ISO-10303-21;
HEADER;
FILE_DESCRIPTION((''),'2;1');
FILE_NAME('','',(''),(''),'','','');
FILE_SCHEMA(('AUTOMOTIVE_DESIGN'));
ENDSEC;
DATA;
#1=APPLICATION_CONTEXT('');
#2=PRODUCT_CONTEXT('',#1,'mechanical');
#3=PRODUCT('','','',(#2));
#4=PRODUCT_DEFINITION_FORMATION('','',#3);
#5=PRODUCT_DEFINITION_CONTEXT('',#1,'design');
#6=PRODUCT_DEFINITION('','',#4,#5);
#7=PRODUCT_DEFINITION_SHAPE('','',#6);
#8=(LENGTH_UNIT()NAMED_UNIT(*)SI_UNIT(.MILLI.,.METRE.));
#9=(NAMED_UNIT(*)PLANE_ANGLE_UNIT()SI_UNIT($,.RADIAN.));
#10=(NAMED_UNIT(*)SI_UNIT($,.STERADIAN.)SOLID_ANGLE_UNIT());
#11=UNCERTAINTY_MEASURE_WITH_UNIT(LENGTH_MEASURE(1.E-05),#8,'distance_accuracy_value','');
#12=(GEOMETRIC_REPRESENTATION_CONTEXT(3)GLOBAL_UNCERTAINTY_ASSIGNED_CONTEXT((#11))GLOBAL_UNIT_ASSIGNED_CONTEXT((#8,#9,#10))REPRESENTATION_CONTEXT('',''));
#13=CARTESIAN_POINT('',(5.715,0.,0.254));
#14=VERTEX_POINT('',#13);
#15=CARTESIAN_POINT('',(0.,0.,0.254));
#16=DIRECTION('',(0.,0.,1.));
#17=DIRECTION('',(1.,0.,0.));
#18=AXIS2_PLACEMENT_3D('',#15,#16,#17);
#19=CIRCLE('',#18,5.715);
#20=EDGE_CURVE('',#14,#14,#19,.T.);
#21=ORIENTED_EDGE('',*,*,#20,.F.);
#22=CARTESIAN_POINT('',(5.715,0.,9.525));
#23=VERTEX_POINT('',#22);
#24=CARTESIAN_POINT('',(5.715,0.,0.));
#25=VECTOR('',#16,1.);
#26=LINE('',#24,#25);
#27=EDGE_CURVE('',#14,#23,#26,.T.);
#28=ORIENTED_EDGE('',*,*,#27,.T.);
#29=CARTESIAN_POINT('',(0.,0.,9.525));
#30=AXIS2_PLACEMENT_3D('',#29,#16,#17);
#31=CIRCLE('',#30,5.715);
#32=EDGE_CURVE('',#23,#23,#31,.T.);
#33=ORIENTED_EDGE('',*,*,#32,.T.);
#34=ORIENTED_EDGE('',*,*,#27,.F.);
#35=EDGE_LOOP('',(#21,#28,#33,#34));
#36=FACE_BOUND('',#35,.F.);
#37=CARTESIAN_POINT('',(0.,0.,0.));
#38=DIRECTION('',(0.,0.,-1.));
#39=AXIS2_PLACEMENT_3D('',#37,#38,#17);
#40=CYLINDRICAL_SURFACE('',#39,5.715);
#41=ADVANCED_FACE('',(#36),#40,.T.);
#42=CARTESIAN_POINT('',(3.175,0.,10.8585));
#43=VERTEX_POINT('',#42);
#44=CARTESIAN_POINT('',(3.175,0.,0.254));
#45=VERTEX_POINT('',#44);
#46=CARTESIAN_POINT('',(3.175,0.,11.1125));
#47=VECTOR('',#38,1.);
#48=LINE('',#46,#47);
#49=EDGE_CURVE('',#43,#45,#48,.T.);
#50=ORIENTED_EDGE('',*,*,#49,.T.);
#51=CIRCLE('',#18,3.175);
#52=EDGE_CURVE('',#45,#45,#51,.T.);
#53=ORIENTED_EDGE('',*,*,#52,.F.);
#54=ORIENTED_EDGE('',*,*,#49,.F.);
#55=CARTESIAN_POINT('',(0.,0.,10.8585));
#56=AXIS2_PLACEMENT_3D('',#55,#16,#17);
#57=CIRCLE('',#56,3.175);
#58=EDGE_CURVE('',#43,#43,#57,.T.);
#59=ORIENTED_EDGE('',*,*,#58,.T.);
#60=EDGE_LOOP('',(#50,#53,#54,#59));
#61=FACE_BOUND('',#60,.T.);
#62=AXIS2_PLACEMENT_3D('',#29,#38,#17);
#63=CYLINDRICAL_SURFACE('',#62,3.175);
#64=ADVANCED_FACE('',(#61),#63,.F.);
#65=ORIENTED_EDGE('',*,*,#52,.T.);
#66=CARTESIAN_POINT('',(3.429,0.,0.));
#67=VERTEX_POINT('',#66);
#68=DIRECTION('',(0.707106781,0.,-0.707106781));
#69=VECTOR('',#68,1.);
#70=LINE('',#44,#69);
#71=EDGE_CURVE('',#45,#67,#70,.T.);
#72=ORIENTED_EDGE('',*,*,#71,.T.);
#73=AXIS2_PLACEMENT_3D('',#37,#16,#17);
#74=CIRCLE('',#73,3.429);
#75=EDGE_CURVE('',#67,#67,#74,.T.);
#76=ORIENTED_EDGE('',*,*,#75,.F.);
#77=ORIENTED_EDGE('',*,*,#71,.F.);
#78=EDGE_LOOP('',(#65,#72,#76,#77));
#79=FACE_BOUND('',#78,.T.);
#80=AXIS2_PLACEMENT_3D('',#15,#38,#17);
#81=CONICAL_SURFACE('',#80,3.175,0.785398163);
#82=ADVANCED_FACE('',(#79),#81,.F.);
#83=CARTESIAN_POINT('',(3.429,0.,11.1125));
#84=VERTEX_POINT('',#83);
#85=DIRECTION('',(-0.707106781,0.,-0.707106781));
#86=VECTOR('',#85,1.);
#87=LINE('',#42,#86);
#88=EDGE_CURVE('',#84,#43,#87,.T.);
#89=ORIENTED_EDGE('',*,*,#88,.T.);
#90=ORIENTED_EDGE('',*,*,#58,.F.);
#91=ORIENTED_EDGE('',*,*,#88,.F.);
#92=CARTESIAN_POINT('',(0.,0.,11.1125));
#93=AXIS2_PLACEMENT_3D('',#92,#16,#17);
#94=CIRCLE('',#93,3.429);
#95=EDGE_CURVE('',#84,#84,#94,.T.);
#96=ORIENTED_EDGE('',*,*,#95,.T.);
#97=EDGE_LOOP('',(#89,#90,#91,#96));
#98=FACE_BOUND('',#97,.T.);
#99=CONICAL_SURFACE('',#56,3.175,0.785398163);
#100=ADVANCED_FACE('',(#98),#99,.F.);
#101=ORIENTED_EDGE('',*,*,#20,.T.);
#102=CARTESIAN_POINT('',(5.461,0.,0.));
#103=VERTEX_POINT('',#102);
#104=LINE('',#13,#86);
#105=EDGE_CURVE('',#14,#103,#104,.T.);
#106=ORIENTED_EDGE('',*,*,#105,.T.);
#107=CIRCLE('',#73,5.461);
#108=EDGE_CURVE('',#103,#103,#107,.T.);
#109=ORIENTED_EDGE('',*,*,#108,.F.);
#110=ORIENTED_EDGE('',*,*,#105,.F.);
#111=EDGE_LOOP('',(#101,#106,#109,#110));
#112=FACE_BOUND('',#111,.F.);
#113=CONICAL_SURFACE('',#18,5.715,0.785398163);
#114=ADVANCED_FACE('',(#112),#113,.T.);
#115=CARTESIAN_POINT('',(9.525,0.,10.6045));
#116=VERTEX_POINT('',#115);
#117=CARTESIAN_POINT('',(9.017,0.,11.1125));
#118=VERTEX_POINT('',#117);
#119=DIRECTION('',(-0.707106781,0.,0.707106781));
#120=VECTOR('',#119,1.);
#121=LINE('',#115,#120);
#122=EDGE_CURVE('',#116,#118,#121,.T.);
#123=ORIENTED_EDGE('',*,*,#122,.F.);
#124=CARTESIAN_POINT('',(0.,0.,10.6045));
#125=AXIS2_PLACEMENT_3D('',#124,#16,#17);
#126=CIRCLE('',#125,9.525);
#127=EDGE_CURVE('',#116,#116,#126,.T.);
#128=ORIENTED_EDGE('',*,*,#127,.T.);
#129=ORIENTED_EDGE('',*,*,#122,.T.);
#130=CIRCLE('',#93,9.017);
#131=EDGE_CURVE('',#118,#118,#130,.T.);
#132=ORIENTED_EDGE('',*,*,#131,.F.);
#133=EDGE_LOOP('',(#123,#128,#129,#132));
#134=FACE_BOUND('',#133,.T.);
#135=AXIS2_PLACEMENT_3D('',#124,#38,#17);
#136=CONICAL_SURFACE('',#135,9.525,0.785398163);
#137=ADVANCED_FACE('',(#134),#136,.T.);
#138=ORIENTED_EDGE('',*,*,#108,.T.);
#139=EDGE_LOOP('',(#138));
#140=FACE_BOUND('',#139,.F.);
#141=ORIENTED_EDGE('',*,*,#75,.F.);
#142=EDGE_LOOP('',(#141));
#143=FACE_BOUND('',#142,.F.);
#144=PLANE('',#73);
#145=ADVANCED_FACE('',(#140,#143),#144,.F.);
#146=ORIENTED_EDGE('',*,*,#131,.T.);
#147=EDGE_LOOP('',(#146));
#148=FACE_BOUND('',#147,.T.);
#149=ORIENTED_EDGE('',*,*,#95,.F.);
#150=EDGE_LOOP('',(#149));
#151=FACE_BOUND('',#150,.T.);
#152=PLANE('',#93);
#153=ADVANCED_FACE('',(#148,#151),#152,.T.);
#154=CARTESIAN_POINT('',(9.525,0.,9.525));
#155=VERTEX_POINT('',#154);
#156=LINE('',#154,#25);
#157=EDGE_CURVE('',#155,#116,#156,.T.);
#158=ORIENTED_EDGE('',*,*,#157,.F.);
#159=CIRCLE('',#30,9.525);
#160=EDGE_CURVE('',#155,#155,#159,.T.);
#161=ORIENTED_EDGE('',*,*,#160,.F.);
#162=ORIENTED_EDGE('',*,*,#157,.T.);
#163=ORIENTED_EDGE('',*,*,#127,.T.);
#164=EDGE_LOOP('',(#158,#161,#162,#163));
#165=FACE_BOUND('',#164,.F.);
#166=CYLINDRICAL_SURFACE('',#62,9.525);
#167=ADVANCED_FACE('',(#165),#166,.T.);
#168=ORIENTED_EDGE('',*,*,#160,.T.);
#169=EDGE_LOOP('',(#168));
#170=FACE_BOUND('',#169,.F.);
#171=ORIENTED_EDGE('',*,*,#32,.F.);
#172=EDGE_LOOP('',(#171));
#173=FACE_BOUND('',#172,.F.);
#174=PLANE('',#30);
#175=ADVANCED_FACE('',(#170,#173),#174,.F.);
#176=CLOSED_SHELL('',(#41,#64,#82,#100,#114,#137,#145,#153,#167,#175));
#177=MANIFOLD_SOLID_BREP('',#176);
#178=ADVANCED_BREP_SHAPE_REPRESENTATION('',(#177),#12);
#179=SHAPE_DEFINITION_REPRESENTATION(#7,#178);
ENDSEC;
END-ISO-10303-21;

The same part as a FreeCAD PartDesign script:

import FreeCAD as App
import Part
import Sketcher

V = App.Vector
Q = App.Units.Quantity


def edges_at(feature, points):
    """Names of the edges that pass closest to the given points."""
    edges = feature.Shape.Edges
    near = lambda p: min(range(len(edges)), key=lambda i: edges[i].distToShape(Part.Vertex(*p))[0])
    return sorted({f"Edge{near(p) + 1}" for p in points})

doc = App.newDocument("Part")
body = doc.addObject("PartDesign::Body", "Body")

# Sketch on XY plane
sketch1 = body.newObject("Sketcher::SketchObject", "Sketch")
sketch1.AttachmentSupport = (doc.getObject("XY_Plane"), [""])
sketch1.MapMode = "FlatFace"
sketch1.addGeometry([
    Part.Circle(V(0, 0, 0), V(0, 0, 1), 5.7),
    Part.Circle(V(0, 0, 0), V(0, 0, 1), 3.2),
], False)
sketch1.addConstraint([
    Sketcher.Constraint("Coincident", 0, 3, -1, 1),
    Sketcher.Constraint("Coincident", 1, 3, -1, 1),
    Sketcher.Constraint("Diameter", 0, Q("0.45 in")),
    Sketcher.Constraint("Diameter", 1, Q("0.25 in")),
])
pad1 = body.newObject("PartDesign::Pad", "Pad")
pad1.Profile = sketch1
pad1.Length = Q("0.375 in")

# Sketch on XY plane
sketch2 = body.newObject("Sketcher::SketchObject", "Sketch001")
sketch2.AttachmentSupport = (doc.getObject("XY_Plane"), [""])
sketch2.MapMode = "FlatFace"
sketch2.AttachmentOffset = App.Placement(V(0, 0, 0.375 * 25.4), App.Rotation())
sketch2.addGeometry([
    Part.Circle(V(0, 0, 0), V(0, 0, 1), 9.5),
    Part.Circle(V(0, 0, 0), V(0, 0, 1), 3.2),
], False)
sketch2.addConstraint([
    Sketcher.Constraint("Coincident", 0, 3, -1, 1),
    Sketcher.Constraint("Coincident", 1, 3, -1, 1),
    Sketcher.Constraint("Diameter", 0, Q("0.75 in")),
    Sketcher.Constraint("Diameter", 1, Q("0.25 in")),
])
pad2 = body.newObject("PartDesign::Pad", "Pad001")
pad2.Profile = sketch2
pad2.Length = Q("0.0625 in")
doc.recompute()

chamfer = body.newObject("PartDesign::Chamfer", "Chamfer")
chamfer.Base = (pad2, edges_at(pad2, [(-9.525, 0, 11.113)]))
chamfer.Size = Q("0.02 in")
doc.recompute()

chamfer2 = body.newObject("PartDesign::Chamfer", "Chamfer001")
chamfer2.Base = (chamfer, edges_at(chamfer, [(-3.175, 0, 11.113), (-5.715, 0, 0), (-3.175, 0, 0)]))
chamfer2.Size = Q("0.01 in")

doc.recompute()
